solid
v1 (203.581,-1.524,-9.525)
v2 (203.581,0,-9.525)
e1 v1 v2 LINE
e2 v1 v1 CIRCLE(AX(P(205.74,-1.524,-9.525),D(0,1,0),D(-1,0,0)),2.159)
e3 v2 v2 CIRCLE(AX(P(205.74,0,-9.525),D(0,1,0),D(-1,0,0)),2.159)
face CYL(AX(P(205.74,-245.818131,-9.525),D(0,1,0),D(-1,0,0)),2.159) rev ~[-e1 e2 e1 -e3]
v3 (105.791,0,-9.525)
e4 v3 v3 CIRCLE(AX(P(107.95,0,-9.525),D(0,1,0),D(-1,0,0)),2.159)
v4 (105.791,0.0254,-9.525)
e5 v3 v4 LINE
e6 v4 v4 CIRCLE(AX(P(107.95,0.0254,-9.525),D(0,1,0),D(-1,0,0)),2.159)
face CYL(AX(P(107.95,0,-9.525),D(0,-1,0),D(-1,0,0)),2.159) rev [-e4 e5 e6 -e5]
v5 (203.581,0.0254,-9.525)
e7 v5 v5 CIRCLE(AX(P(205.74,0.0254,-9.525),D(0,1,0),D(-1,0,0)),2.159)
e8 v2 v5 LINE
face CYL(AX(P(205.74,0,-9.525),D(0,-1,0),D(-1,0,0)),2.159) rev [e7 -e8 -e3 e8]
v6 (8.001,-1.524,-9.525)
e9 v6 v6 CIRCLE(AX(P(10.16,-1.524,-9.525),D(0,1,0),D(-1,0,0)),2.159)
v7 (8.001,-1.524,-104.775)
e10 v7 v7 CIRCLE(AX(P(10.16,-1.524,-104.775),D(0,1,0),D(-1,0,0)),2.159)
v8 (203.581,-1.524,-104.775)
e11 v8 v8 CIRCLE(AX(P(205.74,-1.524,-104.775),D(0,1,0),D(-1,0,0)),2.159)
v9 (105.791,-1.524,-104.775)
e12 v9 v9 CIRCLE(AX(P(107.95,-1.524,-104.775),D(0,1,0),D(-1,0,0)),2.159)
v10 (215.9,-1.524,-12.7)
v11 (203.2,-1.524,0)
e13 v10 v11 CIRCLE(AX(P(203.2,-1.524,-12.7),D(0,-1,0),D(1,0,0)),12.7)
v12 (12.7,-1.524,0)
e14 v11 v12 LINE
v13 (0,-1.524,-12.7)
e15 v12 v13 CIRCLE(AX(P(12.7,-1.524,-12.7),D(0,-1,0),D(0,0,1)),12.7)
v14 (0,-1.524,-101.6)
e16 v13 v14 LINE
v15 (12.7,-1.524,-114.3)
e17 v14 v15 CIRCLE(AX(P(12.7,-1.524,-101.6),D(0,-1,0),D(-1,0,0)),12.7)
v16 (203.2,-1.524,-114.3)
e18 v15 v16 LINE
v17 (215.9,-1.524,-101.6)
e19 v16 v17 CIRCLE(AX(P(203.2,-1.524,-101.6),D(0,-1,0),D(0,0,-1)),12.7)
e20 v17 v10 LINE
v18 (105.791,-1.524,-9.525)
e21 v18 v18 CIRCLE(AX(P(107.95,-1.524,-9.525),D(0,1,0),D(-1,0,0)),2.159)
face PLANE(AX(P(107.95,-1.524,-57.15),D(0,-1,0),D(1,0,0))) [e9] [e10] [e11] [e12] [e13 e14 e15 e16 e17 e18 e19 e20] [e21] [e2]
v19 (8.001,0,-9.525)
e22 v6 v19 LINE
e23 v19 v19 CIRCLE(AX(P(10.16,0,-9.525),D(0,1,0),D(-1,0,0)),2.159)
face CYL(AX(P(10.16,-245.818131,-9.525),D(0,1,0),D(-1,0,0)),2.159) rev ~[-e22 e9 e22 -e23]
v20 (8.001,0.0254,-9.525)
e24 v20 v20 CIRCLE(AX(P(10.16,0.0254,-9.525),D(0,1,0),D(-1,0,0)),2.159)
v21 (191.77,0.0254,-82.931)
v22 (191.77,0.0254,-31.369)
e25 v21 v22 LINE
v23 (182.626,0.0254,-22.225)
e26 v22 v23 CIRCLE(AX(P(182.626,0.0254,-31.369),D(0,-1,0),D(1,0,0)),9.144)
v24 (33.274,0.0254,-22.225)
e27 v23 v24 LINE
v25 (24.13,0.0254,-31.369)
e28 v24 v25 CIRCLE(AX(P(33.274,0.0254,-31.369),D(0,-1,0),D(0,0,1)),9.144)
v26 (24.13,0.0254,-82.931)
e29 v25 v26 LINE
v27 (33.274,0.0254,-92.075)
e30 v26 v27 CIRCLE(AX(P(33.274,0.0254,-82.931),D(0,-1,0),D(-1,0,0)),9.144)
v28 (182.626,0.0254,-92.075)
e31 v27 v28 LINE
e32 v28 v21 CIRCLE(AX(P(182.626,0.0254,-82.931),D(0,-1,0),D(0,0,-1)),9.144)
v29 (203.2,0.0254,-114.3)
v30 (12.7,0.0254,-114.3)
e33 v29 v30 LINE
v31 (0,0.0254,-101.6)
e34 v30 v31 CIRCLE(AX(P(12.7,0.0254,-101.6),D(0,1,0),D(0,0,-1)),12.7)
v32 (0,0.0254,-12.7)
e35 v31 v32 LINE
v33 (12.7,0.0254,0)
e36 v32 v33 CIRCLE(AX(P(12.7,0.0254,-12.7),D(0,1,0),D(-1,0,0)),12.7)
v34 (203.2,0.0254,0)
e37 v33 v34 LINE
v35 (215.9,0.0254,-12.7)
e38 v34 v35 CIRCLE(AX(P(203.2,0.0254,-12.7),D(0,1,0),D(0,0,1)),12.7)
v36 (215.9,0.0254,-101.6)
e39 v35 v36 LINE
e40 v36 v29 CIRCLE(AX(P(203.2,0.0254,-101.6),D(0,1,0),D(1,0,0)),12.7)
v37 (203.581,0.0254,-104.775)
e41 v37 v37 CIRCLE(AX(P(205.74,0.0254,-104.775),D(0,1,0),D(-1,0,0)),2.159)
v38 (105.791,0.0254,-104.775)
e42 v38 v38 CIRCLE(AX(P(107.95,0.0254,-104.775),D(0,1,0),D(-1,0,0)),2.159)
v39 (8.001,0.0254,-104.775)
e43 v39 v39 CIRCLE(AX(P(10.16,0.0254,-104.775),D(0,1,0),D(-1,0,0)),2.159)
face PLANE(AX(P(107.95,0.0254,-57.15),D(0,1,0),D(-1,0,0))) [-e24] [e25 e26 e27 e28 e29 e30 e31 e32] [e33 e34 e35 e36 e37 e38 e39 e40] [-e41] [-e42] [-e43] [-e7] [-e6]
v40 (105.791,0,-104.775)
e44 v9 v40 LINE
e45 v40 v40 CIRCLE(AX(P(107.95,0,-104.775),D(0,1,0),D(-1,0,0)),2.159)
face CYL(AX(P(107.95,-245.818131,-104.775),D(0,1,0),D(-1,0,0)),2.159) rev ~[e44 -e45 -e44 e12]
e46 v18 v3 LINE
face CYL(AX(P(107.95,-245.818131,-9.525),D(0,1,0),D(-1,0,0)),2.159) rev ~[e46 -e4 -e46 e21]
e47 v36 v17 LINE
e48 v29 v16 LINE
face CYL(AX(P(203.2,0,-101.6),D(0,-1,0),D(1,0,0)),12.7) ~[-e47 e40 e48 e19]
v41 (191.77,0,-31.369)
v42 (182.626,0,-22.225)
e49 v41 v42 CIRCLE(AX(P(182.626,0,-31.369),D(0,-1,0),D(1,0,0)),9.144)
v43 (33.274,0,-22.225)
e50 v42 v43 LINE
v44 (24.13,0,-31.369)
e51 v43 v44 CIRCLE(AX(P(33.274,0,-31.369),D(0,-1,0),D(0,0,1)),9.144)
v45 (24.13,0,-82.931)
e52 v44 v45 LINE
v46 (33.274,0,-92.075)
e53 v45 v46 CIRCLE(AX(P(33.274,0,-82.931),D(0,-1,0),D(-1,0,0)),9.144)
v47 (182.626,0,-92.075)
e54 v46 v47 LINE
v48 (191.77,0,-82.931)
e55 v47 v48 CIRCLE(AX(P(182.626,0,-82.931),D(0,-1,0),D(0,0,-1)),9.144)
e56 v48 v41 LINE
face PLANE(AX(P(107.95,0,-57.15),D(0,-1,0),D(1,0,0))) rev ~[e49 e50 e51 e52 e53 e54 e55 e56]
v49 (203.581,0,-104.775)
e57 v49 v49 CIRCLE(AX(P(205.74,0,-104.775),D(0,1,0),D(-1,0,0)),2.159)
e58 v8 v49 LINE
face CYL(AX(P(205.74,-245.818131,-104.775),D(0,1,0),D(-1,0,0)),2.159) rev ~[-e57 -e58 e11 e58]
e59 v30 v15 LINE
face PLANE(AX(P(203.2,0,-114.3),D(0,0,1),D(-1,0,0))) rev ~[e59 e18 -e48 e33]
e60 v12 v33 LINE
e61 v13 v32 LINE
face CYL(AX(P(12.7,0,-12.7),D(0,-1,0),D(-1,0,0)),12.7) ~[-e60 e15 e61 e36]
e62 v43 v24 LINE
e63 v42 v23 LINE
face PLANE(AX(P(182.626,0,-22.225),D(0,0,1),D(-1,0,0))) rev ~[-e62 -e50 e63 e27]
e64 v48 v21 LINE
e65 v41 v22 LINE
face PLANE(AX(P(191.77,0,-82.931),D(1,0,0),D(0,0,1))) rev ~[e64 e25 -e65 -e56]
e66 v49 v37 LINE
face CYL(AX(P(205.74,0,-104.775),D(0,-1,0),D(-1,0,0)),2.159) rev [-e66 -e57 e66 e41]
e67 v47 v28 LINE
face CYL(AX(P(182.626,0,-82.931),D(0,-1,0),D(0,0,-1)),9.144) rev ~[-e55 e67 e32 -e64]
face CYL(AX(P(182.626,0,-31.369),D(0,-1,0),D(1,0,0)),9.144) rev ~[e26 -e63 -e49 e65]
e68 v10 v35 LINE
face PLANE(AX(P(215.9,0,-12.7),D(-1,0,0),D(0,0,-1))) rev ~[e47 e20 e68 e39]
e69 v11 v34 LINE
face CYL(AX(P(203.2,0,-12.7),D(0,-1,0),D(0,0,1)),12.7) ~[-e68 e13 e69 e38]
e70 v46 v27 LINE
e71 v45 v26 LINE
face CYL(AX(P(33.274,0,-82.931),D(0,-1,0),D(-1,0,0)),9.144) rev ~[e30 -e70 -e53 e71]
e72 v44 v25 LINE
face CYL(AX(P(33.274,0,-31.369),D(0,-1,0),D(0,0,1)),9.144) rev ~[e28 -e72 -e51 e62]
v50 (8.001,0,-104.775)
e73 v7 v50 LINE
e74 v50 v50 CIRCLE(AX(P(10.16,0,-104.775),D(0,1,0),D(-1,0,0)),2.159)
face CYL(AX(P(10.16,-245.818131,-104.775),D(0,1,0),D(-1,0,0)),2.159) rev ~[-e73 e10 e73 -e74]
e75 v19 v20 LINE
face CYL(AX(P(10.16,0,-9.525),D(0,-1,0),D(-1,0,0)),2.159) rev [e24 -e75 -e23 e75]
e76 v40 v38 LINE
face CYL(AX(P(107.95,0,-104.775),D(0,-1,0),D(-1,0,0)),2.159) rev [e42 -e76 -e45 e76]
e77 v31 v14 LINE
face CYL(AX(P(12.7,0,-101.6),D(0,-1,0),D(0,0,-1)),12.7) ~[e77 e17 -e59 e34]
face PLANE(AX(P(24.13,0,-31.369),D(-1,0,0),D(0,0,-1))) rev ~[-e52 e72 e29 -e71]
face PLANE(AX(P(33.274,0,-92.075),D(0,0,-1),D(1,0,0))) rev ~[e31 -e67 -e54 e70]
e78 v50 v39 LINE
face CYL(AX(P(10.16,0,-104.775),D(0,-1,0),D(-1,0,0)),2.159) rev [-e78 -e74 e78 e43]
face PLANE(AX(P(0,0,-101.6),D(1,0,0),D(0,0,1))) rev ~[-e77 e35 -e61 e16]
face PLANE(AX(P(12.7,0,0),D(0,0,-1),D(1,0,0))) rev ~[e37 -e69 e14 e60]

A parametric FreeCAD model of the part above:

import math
import FreeCAD as App
import Part
import Sketcher
Q = App.Units.Quantity

doc = App.newDocument("Part")
body = doc.addObject("PartDesign::Body", "Body")

sketch1 = doc.addObject("Sketcher::SketchObject", "Sketch")
body.addObject(sketch1)
sketch1.AttachmentSupport = (doc.XZ_Plane, [""])
sketch1.MapMode = "FlatFace"
sketch1.addGeometry([
    Part.LineSegment(App.Vector(203, 0, 0), App.Vector(13, 0, 0)),
    Part.ArcOfCircle(Part.Circle(App.Vector(13, -13, 0), App.Vector(0, 0, 1), 13), math.radians(90), math.radians(180)),
    Part.LineSegment(App.Vector(0, -13, 0), App.Vector(0, -102, 0)),
    Part.ArcOfCircle(Part.Circle(App.Vector(13, -102, 0), App.Vector(0, 0, 1), 13), math.radians(180), math.radians(270)),
    Part.LineSegment(App.Vector(13, -114, 0), App.Vector(203, -114, 0)),
    Part.ArcOfCircle(Part.Circle(App.Vector(203, -102, 0), App.Vector(0, 0, 1), 13), math.radians(-90), math.radians(0)),
    Part.LineSegment(App.Vector(216, -102, 0), App.Vector(216, -13, 0)),
    Part.ArcOfCircle(Part.Circle(App.Vector(203, -13, 0), App.Vector(0, 0, 1), 13), math.radians(0), math.radians(90)),
], False)
sketch1.addConstraint([
    Sketcher.Constraint("Tangent", 0, 2, 1, 1),
    Sketcher.Constraint("Tangent", 1, 2, 2, 1),
    Sketcher.Constraint("Tangent", 2, 2, 3, 1),
    Sketcher.Constraint("Tangent", 3, 2, 4, 1),
    Sketcher.Constraint("Tangent", 4, 2, 5, 1),
    Sketcher.Constraint("Tangent", 5, 2, 6, 1),
    Sketcher.Constraint("Tangent", 6, 2, 7, 1),
    Sketcher.Constraint("Tangent", 7, 2, 0, 1),
    Sketcher.Constraint("Horizontal", 0),
    Sketcher.Constraint("Vertical", 2),
    Sketcher.Constraint("Horizontal", 4),
    Sketcher.Constraint("Vertical", 6),
    Sketcher.Constraint("Equal", 1, 3),
    Sketcher.Constraint("Equal", 3, 5),
    Sketcher.Constraint("Equal", 5, 7),
    Sketcher.Constraint("PointOnObject", 0, 2, -1),
    Sketcher.Constraint("PointOnObject", 1, 2, -2),
    Sketcher.Constraint("Radius", 1, Q("0.5 in")),
    Sketcher.Constraint("DistanceX", 0, 2, 0, 1, Q("7.5 in")),
    Sketcher.Constraint("DistanceY", 2, 2, 2, 1, Q("3.5 in")),
])
pad1 = doc.addObject("PartDesign::Pad", "Pad")
body.addObject(pad1)
pad1.Profile = sketch1
pad1.Length = Q("0.06 in")

sketch2 = doc.addObject("Sketcher::SketchObject", "Sketch001")
body.addObject(sketch2)
sketch2.AttachmentSupport = (doc.XZ_Plane, [""])
sketch2.MapMode = "FlatFace"
sketch2.AttachmentOffset = App.Placement(App.Vector(0, 0, 0.06 * 25.4), App.Rotation())
sketch2.addGeometry([
    Part.Circle(App.Vector(10.2, -9.5, 0), App.Vector(0, 0, 1), 2.2),
    Part.Circle(App.Vector(108, -9.5, 0), App.Vector(0, 0, 1), 2.2),
    Part.Circle(App.Vector(205.7, -9.5, 0), App.Vector(0, 0, 1), 2.2),
    Part.Circle(App.Vector(205.7, -104.8, 0), App.Vector(0, 0, 1), 2.2),
    Part.Circle(App.Vector(108, -104.8, 0), App.Vector(0, 0, 1), 2.2),
    Part.Circle(App.Vector(10.2, -104.8, 0), App.Vector(0, 0, 1), 2.2),
], False)
sketch2.addConstraint([
    Sketcher.Constraint("Equal", 0, 1),
    Sketcher.Constraint("Equal", 1, 2),
    Sketcher.Constraint("Equal", 2, 3),
    Sketcher.Constraint("Equal", 3, 4),
    Sketcher.Constraint("Equal", 4, 5),
    Sketcher.Constraint("Horizontal", 0, 3, 1, 3),
    Sketcher.Constraint("Horizontal", 1, 3, 2, 3),
    Sketcher.Constraint("Horizontal", 3, 3, 4, 3),
    Sketcher.Constraint("Horizontal", 4, 3, 5, 3),
    Sketcher.Constraint("Vertical", 2, 3, 3, 3),
    Sketcher.Constraint("Vertical", 1, 3, 4, 3),
    Sketcher.Constraint("Vertical", 0, 3, 5, 3),
    Sketcher.Constraint("Diameter", 0, Q("0.17 in")),
    Sketcher.Constraint("DistanceX", -1, 1, 0, 3, Q("0.4 in")),
    Sketcher.Constraint("DistanceX", -1, 1, 2, 3, Q("8.1 in")),
    Sketcher.Constraint("DistanceX", -1, 1, 1, 3, Q("4.25 in")),
    Sketcher.Constraint("DistanceY", 3, 3, 2, 3, Q("3.75 in")),
    Sketcher.Constraint("DistanceY", 0, 3, -1, 1, Q("0.375 in")),
])
doc.recompute()
hole = doc.addObject("PartDesign::Hole", "Hole")
body.addObject(hole)
hole.Profile = sketch2
hole.ThreadType = "None"
hole.Diameter = Q("0.17 in")
hole.DepthType = "ThroughAll"

sketch3 = doc.addObject("Sketcher::SketchObject", "Sketch002")
body.addObject(sketch3)
sketch3.AttachmentSupport = (doc.XZ_Plane, [""])
sketch3.MapMode = "FlatFace"
sketch3.addGeometry([
    Part.LineSegment(App.Vector(0, -101.6, 0), App.Vector(0, -12.7, 0)),
    Part.ArcOfCircle(Part.Circle(App.Vector(12.7, -12.7, 0), App.Vector(0, 0, 1), 12.7), math.radians(90), math.radians(180)),
    Part.LineSegment(App.Vector(12.7, 0, 0), App.Vector(203.2, 0, 0)),
    Part.ArcOfCircle(Part.Circle(App.Vector(203.2, -12.7, 0), App.Vector(0, 0, 1), 12.7), math.radians(0), math.radians(90)),
    Part.LineSegment(App.Vector(215.9, -12.7, 0), App.Vector(215.9, -101.6, 0)),
    Part.ArcOfCircle(Part.Circle(App.Vector(203.2, -101.6, 0), App.Vector(0, 0, 1), 12.7), math.radians(-90), math.radians(0)),
    Part.LineSegment(App.Vector(203.2, -114.3, 0), App.Vector(12.7, -114.3, 0)),
    Part.ArcOfCircle(Part.Circle(App.Vector(12.7, -101.6, 0), App.Vector(0, 0, 1), 12.7), math.radians(180), math.radians(270)),
    Part.Circle(App.Vector(205.7, -104.8, 0), App.Vector(0, 0, 1), 2.2),
    Part.Circle(App.Vector(108, -104.8, 0), App.Vector(0, 0, 1), 2.2),
    Part.Circle(App.Vector(10.2, -104.8, 0), App.Vector(0, 0, 1), 2.2),
    Part.Circle(App.Vector(205.7, -9.5, 0), App.Vector(0, 0, 1), 2.2),
    Part.Circle(App.Vector(108, -9.5, 0), App.Vector(0, 0, 1), 2.2),
    Part.ArcOfCircle(Part.Circle(App.Vector(182.6, -31.4, 0), App.Vector(0, 0, 1), 9.1), math.radians(0), math.radians(90)),
    Part.LineSegment(App.Vector(182.6, -22.2, 0), App.Vector(33.3, -22.2, 0)),
    Part.ArcOfCircle(Part.Circle(App.Vector(33.3, -31.4, 0), App.Vector(0, 0, 1), 9.1), math.radians(90), math.radians(180)),
    Part.LineSegment(App.Vector(24.1, -31.4, 0), App.Vector(24.1, -82.9, 0)),
    Part.ArcOfCircle(Part.Circle(App.Vector(33.3, -82.9, 0), App.Vector(0, 0, 1), 9.1), math.radians(180), math.radians(270)),
    Part.LineSegment(App.Vector(33.3, -92.1, 0), App.Vector(182.6, -92.1, 0)),
    Part.ArcOfCircle(Part.Circle(App.Vector(182.6, -82.9, 0), App.Vector(0, 0, 1), 9.1), math.radians(-90), math.radians(0)),
    Part.LineSegment(App.Vector(191.8, -82.9, 0), App.Vector(191.8, -31.4, 0)),
    Part.Circle(App.Vector(10.2, -9.5, 0), App.Vector(0, 0, 1), 2.2),
], False)
sketch3.addConstraint([
    Sketcher.Constraint("Tangent", 0, 2, 1, 2),
    Sketcher.Constraint("Tangent", 1, 1, 2, 1),
    Sketcher.Constraint("Tangent", 2, 2, 3, 2),
    Sketcher.Constraint("Tangent", 3, 1, 4, 1),
    Sketcher.Constraint("Tangent", 4, 2, 5, 2),
    Sketcher.Constraint("Tangent", 5, 1, 6, 1),
    Sketcher.Constraint("Tangent", 6, 2, 7, 2),
    Sketcher.Constraint("Tangent", 7, 1, 0, 1),
    Sketcher.Constraint("Tangent", 13, 2, 14, 1),
    Sketcher.Constraint("Tangent", 14, 2, 15, 1),
    Sketcher.Constraint("Tangent", 15, 2, 16, 1),
    Sketcher.Constraint("Tangent", 16, 2, 17, 1),
    Sketcher.Constraint("Tangent", 17, 2, 18, 1),
    Sketcher.Constraint("Tangent", 18, 2, 19, 1),
    Sketcher.Constraint("Tangent", 19, 2, 20, 1),
    Sketcher.Constraint("Tangent", 20, 2, 13, 1),
    Sketcher.Constraint("Vertical", 0),
    Sketcher.Constraint("Horizontal", 2),
    Sketcher.Constraint("Vertical", 4),
    Sketcher.Constraint("Horizontal", 6),
    Sketcher.Constraint("Horizontal", 14),
    Sketcher.Constraint("Vertical", 16),
    Sketcher.Constraint("Horizontal", 18),
    Sketcher.Constraint("Vertical", 20),
    Sketcher.Constraint("Equal", 1, 3),
    Sketcher.Constraint("Equal", 3, 5),
    Sketcher.Constraint("Equal", 5, 7),
    Sketcher.Constraint("Equal", 8, 9),
    Sketcher.Constraint("Equal", 9, 10),
    Sketcher.Constraint("Equal", 10, 11),
    Sketcher.Constraint("Equal", 11, 12),
    Sketcher.Constraint("Equal", 13, 15),
    Sketcher.Constraint("Equal", 15, 17),
    Sketcher.Constraint("Equal", 17, 19),
    Sketcher.Constraint("Equal", 12, 21),
    Sketcher.Constraint("PointOnObject", 0, 2, -2),
    Sketcher.Constraint("PointOnObject", 1, 1, -1),
    Sketcher.Constraint("Horizontal", 8, 3, 9, 3),
    Sketcher.Constraint("Horizontal", 9, 3, 10, 3),
    Sketcher.Constraint("Horizontal", 11, 3, 12, 3),
    Sketcher.Constraint("Horizontal", 12, 3, 21, 3),
    Sketcher.Constraint("Vertical", 8, 3, 11, 3),
    Sketcher.Constraint("Vertical", 9, 3, 12, 3),
    Sketcher.Constraint("Vertical", 10, 3, 21, 3),
    Sketcher.Constraint("Radius", 1, Q("0.5 in")),
    Sketcher.Constraint("Diameter", 8, Q("0.17 in")),
    Sketcher.Constraint("Radius", 13, Q("0.36 in")),
    Sketcher.Constraint("DistanceX", 2, 1, 2, 2, Q("7.5 in")),
    Sketcher.Constraint("DistanceY", 0, 1, 0, 2, Q("3.5 in")),
    Sketcher.Constraint("DistanceX", 14, 2, 14, 1, Q("5.88 in")),
    Sketcher.Constraint("DistanceY", 16, 2, 16, 1, Q("2.03 in")),
    Sketcher.Constraint("DistanceX", -1, 1, 8, 3, Q("8.1 in")),
    Sketcher.Constraint("DistanceX", -1, 1, 10, 3, Q("0.4 in")),
    Sketcher.Constraint("DistanceY", 13, 2, 11, 3, Q("0.5 in")),
    Sketcher.Constraint("DistanceY", 10, 3, 17, 2, Q("0.5 in")),
    Sketcher.Constraint("DistanceX", -1, 1, 9, 3, Q("4.25 in")),
    Sketcher.Constraint("DistanceX", -1, 1, 13, 3, Q("7.19 in")),
    Sketcher.Constraint("DistanceY", 8, 3, -1, 1, Q("4.125 in")),
])
pad2 = doc.addObject("PartDesign::Pad", "Pad001")
body.addObject(pad2)
pad2.Profile = sketch3
pad2.Length = Q("0.001 in")
pad2.Reversed = True

doc.recompute()
